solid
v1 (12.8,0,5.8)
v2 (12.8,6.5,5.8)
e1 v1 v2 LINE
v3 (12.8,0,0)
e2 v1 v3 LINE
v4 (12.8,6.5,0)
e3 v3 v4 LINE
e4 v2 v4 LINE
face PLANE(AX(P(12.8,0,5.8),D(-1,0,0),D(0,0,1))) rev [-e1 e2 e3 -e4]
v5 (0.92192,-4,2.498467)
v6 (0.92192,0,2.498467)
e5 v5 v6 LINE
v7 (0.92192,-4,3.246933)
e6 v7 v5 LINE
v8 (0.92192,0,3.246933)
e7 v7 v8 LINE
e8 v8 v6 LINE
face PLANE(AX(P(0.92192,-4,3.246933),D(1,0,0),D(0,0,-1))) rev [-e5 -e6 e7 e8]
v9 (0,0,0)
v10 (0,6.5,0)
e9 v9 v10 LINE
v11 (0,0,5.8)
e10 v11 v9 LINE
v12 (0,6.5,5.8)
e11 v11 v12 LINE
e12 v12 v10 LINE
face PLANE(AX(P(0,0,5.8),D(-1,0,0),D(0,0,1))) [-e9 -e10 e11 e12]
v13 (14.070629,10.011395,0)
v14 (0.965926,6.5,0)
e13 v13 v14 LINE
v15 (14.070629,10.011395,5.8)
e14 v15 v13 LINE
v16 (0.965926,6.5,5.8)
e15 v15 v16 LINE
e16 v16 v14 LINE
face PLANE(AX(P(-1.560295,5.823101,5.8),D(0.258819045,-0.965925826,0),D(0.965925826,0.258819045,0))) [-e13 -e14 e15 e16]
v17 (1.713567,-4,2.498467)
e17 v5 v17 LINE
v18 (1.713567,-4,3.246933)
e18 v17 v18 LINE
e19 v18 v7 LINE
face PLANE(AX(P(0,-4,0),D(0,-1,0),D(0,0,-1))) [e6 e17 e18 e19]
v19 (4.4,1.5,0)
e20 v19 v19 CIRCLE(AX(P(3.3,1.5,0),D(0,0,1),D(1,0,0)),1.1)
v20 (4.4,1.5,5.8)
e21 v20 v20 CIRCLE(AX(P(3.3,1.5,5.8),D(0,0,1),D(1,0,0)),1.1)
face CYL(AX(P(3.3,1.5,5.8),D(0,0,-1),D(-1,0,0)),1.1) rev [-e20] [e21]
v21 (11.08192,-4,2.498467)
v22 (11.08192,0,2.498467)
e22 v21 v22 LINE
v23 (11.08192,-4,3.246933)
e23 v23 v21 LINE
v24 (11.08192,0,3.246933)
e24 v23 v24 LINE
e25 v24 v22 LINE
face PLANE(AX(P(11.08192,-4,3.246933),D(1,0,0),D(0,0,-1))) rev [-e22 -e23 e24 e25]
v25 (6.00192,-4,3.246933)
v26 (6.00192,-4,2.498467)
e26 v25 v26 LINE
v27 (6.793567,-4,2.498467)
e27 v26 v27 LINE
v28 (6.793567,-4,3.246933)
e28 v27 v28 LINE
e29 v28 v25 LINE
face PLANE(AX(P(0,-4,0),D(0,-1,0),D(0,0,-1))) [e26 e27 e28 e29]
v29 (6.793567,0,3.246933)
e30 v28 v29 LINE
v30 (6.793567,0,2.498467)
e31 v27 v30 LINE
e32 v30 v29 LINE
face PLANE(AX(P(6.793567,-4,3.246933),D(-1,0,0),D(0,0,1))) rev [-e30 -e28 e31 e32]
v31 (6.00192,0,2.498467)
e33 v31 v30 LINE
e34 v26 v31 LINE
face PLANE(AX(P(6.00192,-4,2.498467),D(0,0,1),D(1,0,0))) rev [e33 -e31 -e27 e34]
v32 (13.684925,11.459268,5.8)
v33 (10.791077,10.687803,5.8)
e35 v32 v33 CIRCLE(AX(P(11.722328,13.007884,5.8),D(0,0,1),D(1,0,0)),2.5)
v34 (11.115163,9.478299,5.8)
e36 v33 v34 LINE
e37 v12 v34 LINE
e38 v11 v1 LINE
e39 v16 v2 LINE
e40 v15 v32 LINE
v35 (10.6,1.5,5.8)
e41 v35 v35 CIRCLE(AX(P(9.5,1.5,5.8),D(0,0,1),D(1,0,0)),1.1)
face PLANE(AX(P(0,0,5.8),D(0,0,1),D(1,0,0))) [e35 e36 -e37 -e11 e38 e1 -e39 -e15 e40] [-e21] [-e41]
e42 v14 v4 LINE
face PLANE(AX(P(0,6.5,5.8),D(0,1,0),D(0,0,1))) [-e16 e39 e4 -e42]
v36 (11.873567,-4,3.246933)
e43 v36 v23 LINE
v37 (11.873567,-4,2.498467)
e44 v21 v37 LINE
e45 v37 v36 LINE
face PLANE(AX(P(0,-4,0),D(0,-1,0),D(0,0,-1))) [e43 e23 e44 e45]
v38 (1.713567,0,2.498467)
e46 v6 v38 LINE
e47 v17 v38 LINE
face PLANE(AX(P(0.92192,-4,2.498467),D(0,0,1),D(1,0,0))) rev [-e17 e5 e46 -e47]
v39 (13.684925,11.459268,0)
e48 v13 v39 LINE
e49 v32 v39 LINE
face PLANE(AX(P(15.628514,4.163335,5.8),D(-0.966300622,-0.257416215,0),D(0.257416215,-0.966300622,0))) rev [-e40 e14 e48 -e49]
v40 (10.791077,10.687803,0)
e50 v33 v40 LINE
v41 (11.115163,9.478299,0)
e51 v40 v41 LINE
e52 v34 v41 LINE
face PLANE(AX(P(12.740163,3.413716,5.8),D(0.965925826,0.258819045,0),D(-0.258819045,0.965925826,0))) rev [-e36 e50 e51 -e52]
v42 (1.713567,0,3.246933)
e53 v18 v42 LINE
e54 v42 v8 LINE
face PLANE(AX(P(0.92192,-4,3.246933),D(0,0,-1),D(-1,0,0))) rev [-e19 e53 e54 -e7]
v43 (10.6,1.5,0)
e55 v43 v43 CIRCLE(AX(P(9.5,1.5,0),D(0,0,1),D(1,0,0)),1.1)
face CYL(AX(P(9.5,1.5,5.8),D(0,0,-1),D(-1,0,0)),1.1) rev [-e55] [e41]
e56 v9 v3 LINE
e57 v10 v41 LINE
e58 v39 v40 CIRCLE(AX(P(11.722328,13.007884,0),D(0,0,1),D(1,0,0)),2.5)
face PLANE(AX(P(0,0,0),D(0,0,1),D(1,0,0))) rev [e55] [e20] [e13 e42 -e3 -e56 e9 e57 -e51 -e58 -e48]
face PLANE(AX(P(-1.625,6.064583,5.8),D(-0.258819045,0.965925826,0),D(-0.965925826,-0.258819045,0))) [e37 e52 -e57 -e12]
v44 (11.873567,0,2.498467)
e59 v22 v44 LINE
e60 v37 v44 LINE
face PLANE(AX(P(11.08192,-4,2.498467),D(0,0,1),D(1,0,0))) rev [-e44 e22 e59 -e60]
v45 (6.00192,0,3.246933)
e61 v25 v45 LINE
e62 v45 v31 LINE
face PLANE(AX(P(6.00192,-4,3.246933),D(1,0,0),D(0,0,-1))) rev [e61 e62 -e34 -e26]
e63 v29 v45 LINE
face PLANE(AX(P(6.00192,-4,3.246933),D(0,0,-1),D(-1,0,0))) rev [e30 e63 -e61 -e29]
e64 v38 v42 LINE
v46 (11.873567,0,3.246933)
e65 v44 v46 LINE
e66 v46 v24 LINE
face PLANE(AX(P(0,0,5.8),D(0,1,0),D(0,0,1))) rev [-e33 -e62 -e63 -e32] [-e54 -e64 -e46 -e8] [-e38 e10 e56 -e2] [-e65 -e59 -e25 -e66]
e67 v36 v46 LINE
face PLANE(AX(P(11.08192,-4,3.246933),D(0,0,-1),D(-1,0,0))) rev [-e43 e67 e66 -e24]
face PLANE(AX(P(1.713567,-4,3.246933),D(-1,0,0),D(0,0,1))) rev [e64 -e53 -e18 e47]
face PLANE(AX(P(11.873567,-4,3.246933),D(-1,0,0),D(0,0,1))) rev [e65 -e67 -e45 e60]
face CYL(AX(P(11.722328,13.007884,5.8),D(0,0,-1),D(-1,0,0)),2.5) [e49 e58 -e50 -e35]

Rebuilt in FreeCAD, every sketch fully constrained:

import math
import FreeCAD as App
import Part
import Sketcher
from FreeCAD import Vector
Q = App.Units.Quantity

doc = App.newDocument("Part")
body = doc.addObject("PartDesign::Body", "Body")

# Sketch on XY plane
sketch1 = body.newObject("Sketcher::SketchObject", "Sketch")
sketch1.AttachmentSupport = (doc.getObject("XY_Plane"), [""])
sketch1.MapMode = "FlatFace"
sketch1.addGeometry(Part.LineSegment(Vector(11.1, 9.5, 0), Vector(0, 6.5, 0)), False)
sketch1.addGeometry(Part.LineSegment(Vector(0, 6.5, 0), Vector(0, 0, 0)), False)
sketch1.addGeometry(Part.LineSegment(Vector(0, 0, 0), Vector(12.8, 0, 0)), False)
sketch1.addGeometry(Part.LineSegment(Vector(12.8, 0, 0), Vector(12.8, 6.5, 0)), False)
sketch1.addGeometry(Part.LineSegment(Vector(12.8, 6.5, 0), Vector(1, 6.5, 0)), False)
sketch1.addGeometry(Part.LineSegment(Vector(1, 6.5, 0), Vector(14.1, 10, 0)), False)
sketch1.addGeometry(Part.LineSegment(Vector(14.1, 10, 0), Vector(13.7, 11.5, 0)), False)
sketch1.addGeometry(Part.ArcOfCircle(Part.Circle(Vector(11.7, 13, 0), Vector(0, 0, 1), 2.5), math.radians(-38), math.radians(248)), False)
sketch1.addGeometry(Part.LineSegment(Vector(10.8, 10.7, 0), Vector(11.1, 9.5, 0)), False)
sketch1.addGeometry(Part.Circle(Vector(9.5, 1.5, 0), Vector(0, 0, 1), 1.1), False)
sketch1.addGeometry(Part.Circle(Vector(3.3, 1.5, 0), Vector(0, 0, 1), 1.1), False)
sketch1.addConstraint(Sketcher.Constraint("Coincident", 0, 2, 1, 1))
sketch1.addConstraint(Sketcher.Constraint("Coincident", 1, 2, 2, 1))
sketch1.addConstraint(Sketcher.Constraint("Coincident", 2, 2, 3, 1))
sketch1.addConstraint(Sketcher.Constraint("Coincident", 3, 2, 4, 1))
sketch1.addConstraint(Sketcher.Constraint("Coincident", 4, 2, 5, 1))
sketch1.addConstraint(Sketcher.Constraint("Coincident", 5, 2, 6, 1))
sketch1.addConstraint(Sketcher.Constraint("Coincident", 6, 2, 7, 1))
sketch1.addConstraint(Sketcher.Constraint("Coincident", 7, 2, 8, 1))
sketch1.addConstraint(Sketcher.Constraint("Coincident", 8, 2, 0, 1))
sketch1.addConstraint(Sketcher.Constraint("Vertical", 1))
sketch1.addConstraint(Sketcher.Constraint("Horizontal", 2))
sketch1.addConstraint(Sketcher.Constraint("Vertical", 3))
sketch1.addConstraint(Sketcher.Constraint("Horizontal", 4))
sketch1.addConstraint(Sketcher.Constraint("Coincident", 1, 2, -1, 1))
sketch1.addConstraint(Sketcher.Constraint("Equal", 9, 10))
sketch1.addConstraint(Sketcher.Constraint("Parallel", 0, 5))
sketch1.addConstraint(Sketcher.Constraint("Perpendicular", 5, 8))
sketch1.addConstraint(Sketcher.Constraint("Horizontal", 9, 3, 10, 3))
sketch1.addConstraint(Sketcher.Constraint("Horizontal", 0, 2, 3, 2))
sketch1.addConstraint(Sketcher.Constraint("Diameter", 9, 2.2))
sketch1.addConstraint(Sketcher.Constraint("Radius", 7, 2.5))
sketch1.addConstraint(Sketcher.Constraint("Angle", 0, Q("-165 deg")))
sketch1.addConstraint(Sketcher.Constraint("DistanceX", 2, 1, 2, 2, 12.8))
sketch1.addConstraint(Sketcher.Constraint("DistanceY", 1, 2, 1, 1, 6.5))
sketch1.addConstraint(Sketcher.Constraint("DistanceY", 10, 3, 0, 2, 5.0))
sketch1.addConstraint(Sketcher.Constraint("DistanceX", -1, 1, 9, 3, 9.5))
sketch1.addConstraint(Sketcher.Constraint("DistanceX", -1, 1, 10, 3, 3.3))
sketch1.addConstraint(Sketcher.Constraint("DistanceY", -1, 1, 8, 2, 9.478299))
sketch1.addConstraint(Sketcher.Constraint("DistanceX", 7, 3, 5, 2, 2.348302))
sketch1.addConstraint(Sketcher.Constraint("Distance", 8, 1.252171))
sketch1.addConstraint(Sketcher.Constraint("DistanceX", 4, 2, 4, 1, 11.834074))
sketch1.addConstraint(Sketcher.Constraint("DistanceX", -1, 1, 5, 2, 14.070629))
sketch1.addConstraint(Sketcher.Constraint("DistanceX", 7, 2, 6, 2, 2.893848))
pad1 = body.newObject("PartDesign::Pad", "Pad")
pad1.Profile = sketch1
pad1.Length = 5.8

# Sketch on XZ plane
sketch2 = body.newObject("Sketcher::SketchObject", "Sketch001")
sketch2.AttachmentSupport = (doc.getObject("XZ_Plane"), [""])
sketch2.MapMode = "FlatFace"
sketch2.addGeometry(Part.LineSegment(Vector(6, 3.2, 0), Vector(6, 2.5, 0)), False)
sketch2.addGeometry(Part.LineSegment(Vector(6, 2.5, 0), Vector(6.8, 2.5, 0)), False)
sketch2.addGeometry(Part.LineSegment(Vector(6.8, 2.5, 0), Vector(6.8, 3.2, 0)), False)
sketch2.addGeometry(Part.LineSegment(Vector(6.8, 3.2, 0), Vector(6, 3.2, 0)), False)
sketch2.addGeometry(Part.LineSegment(Vector(0.9, 3.2, 0), Vector(0.9, 2.5, 0)), False)
sketch2.addGeometry(Part.LineSegment(Vector(0.9, 2.5, 0), Vector(1.7, 2.5, 0)), False)
sketch2.addGeometry(Part.LineSegment(Vector(1.7, 2.5, 0), Vector(1.7, 3.2, 0)), False)
sketch2.addGeometry(Part.LineSegment(Vector(1.7, 3.2, 0), Vector(0.9, 3.2, 0)), False)
sketch2.addGeometry(Part.LineSegment(Vector(11.1, 3.2, 0), Vector(11.1, 2.5, 0)), False)
sketch2.addGeometry(Part.LineSegment(Vector(11.1, 2.5, 0), Vector(11.9, 2.5, 0)), False)
sketch2.addGeometry(Part.LineSegment(Vector(11.9, 2.5, 0), Vector(11.9, 3.2, 0)), False)
sketch2.addGeometry(Part.LineSegment(Vector(11.9, 3.2, 0), Vector(11.1, 3.2, 0)), False)
sketch2.addConstraint(Sketcher.Constraint("Coincident", 0, 2, 1, 1))
sketch2.addConstraint(Sketcher.Constraint("Coincident", 1, 2, 2, 1))
sketch2.addConstraint(Sketcher.Constraint("Coincident", 2, 2, 3, 1))
sketch2.addConstraint(Sketcher.Constraint("Coincident", 3, 2, 0, 1))
sketch2.addConstraint(Sketcher.Constraint("Coincident", 4, 2, 5, 1))
sketch2.addConstraint(Sketcher.Constraint("Coincident", 5, 2, 6, 1))
sketch2.addConstraint(Sketcher.Constraint("Coincident", 6, 2, 7, 1))
sketch2.addConstraint(Sketcher.Constraint("Coincident", 7, 2, 4, 1))
sketch2.addConstraint(Sketcher.Constraint("Coincident", 8, 2, 9, 1))
sketch2.addConstraint(Sketcher.Constraint("Coincident", 9, 2, 10, 1))
sketch2.addConstraint(Sketcher.Constraint("Coincident", 10, 2, 11, 1))
sketch2.addConstraint(Sketcher.Constraint("Coincident", 11, 2, 8, 1))
sketch2.addConstraint(Sketcher.Constraint("Vertical", 0))
sketch2.addConstraint(Sketcher.Constraint("Horizontal", 1))
sketch2.addConstraint(Sketcher.Constraint("Vertical", 2))
sketch2.addConstraint(Sketcher.Constraint("Horizontal", 3))
sketch2.addConstraint(Sketcher.Constraint("Vertical", 4))
sketch2.addConstraint(Sketcher.Constraint("Horizontal", 5))
sketch2.addConstraint(Sketcher.Constraint("Vertical", 6))
sketch2.addConstraint(Sketcher.Constraint("Horizontal", 7))
sketch2.addConstraint(Sketcher.Constraint("Vertical", 8))
sketch2.addConstraint(Sketcher.Constraint("Horizontal", 9))
sketch2.addConstraint(Sketcher.Constraint("Vertical", 10))
sketch2.addConstraint(Sketcher.Constraint("Horizontal", 11))
sketch2.addConstraint(Sketcher.Constraint("Horizontal", 1, 2, 4, 2))
sketch2.addConstraint(Sketcher.Constraint("Horizontal", 3, 2, 6, 2))
sketch2.addConstraint(Sketcher.Constraint("Horizontal", 5, 2, 8, 2))
sketch2.addConstraint(Sketcher.Constraint("Horizontal", 7, 2, 10, 2))
sketch2.addConstraint(Sketcher.Constraint("Equal", 3, 5))
sketch2.addConstraint(Sketcher.Constraint("Equal", 7, 9))
sketch2.addConstraint(Sketcher.Constraint("DistanceX", 4, 2, 0, 2, 5.08))
sketch2.addConstraint(Sketcher.Constraint("DistanceX", 0, 2, 8, 2, 5.08))
sketch2.addConstraint(Sketcher.Constraint("DistanceX", 1, 1, 1, 2, 0.791647))
sketch2.addConstraint(Sketcher.Constraint("DistanceY", 0, 2, 0, 1, 0.748467))
sketch2.addConstraint(Sketcher.Constraint("DistanceX", -1, 1, 0, 2, 6.00192))
sketch2.addConstraint(Sketcher.Constraint("DistanceY", -1, 1, 0, 2, 2.498467))
pad2 = body.newObject("PartDesign::Pad", "Pad001")
pad2.Profile = sketch2
pad2.Length = 4

doc.recompute()
